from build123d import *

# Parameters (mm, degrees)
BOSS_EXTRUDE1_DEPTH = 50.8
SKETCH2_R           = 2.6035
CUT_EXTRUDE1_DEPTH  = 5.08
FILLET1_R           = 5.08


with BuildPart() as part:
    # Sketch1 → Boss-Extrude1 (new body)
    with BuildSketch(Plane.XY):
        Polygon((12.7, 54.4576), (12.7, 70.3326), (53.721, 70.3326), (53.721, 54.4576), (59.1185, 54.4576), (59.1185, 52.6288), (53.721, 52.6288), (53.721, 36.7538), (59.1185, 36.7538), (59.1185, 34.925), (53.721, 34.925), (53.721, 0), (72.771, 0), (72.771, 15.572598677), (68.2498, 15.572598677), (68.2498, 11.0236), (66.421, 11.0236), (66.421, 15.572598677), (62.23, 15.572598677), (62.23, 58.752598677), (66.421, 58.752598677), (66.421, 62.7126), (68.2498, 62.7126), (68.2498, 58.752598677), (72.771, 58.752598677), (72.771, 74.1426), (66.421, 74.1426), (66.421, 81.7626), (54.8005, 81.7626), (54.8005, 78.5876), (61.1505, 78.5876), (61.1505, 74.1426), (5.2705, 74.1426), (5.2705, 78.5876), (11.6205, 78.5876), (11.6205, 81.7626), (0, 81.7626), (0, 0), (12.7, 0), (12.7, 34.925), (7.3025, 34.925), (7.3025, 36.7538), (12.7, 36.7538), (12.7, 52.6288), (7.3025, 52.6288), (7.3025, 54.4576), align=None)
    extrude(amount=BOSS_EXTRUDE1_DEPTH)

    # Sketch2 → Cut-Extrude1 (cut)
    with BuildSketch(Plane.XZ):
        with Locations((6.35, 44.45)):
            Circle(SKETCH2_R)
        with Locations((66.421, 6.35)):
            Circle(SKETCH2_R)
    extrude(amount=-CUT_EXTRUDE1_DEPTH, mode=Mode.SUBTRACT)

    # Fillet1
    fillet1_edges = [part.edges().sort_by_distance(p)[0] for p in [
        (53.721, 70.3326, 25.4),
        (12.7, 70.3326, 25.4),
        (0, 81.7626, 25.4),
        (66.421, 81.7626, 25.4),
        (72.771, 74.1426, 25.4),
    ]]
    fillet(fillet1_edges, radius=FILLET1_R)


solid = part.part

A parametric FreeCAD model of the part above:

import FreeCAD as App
import Part
import Sketcher
Q = App.Units.Quantity


def edges_at(feature, points):
    """Names of the edges that pass closest to the given points."""
    edges = feature.Shape.Edges
    near = lambda p: min(range(len(edges)), key=lambda i: edges[i].distToShape(Part.Vertex(*p))[0])
    return sorted({f"Edge{near(p) + 1}" for p in points})

doc = App.newDocument("Part")
body = doc.addObject("PartDesign::Body", "Body")

sketch1 = body.newObject("Sketcher::SketchObject", "Sketch")
sketch1.AttachmentSupport = (doc.getObject("XY_Plane"), [""])
sketch1.MapMode = "FlatFace"
sketch1.addGeometry([
    Part.LineSegment(App.Vector(12.7, 54.5, 0), App.Vector(12.7, 70.3, 0)),
    Part.LineSegment(App.Vector(12.7, 70.3, 0), App.Vector(53.7, 70.3, 0)),
    Part.LineSegment(App.Vector(53.7, 70.3, 0), App.Vector(53.7, 54.5, 0)),
    Part.LineSegment(App.Vector(53.7, 54.5, 0), App.Vector(59.1, 54.5, 0)),
    Part.LineSegment(App.Vector(59.1, 54.5, 0), App.Vector(59.1, 52.6, 0)),
    Part.LineSegment(App.Vector(59.1, 52.6, 0), App.Vector(53.7, 52.6, 0)),
    Part.LineSegment(App.Vector(53.7, 52.6, 0), App.Vector(53.7, 36.8, 0)),
    Part.LineSegment(App.Vector(53.7, 36.8, 0), App.Vector(59.1, 36.8, 0)),
    Part.LineSegment(App.Vector(59.1, 36.8, 0), App.Vector(59.1, 34.9, 0)),
    Part.LineSegment(App.Vector(59.1, 34.9, 0), App.Vector(53.7, 34.9, 0)),
    Part.LineSegment(App.Vector(53.7, 34.9, 0), App.Vector(53.7, 0, 0)),
    Part.LineSegment(App.Vector(53.7, 0, 0), App.Vector(72.8, 0, 0)),
    Part.LineSegment(App.Vector(72.8, 0, 0), App.Vector(72.8, 15.6, 0)),
    Part.LineSegment(App.Vector(72.8, 15.6, 0), App.Vector(68.2, 15.6, 0)),
    Part.LineSegment(App.Vector(68.2, 15.6, 0), App.Vector(68.2, 11, 0)),
    Part.LineSegment(App.Vector(68.2, 11, 0), App.Vector(66.4, 11, 0)),
    Part.LineSegment(App.Vector(66.4, 11, 0), App.Vector(66.4, 15.6, 0)),
    Part.LineSegment(App.Vector(66.4, 15.6, 0), App.Vector(62.2, 15.6, 0)),
    Part.LineSegment(App.Vector(62.2, 15.6, 0), App.Vector(62.2, 58.8, 0)),
    Part.LineSegment(App.Vector(62.2, 58.8, 0), App.Vector(66.4, 58.8, 0)),
    Part.LineSegment(App.Vector(66.4, 58.8, 0), App.Vector(66.4, 62.7, 0)),
    Part.LineSegment(App.Vector(66.4, 62.7, 0), App.Vector(68.2, 62.7, 0)),
    Part.LineSegment(App.Vector(68.2, 62.7, 0), App.Vector(68.2, 58.8, 0)),
    Part.LineSegment(App.Vector(68.2, 58.8, 0), App.Vector(72.8, 58.8, 0)),
    Part.LineSegment(App.Vector(72.8, 58.8, 0), App.Vector(72.8, 74.1, 0)),
    Part.LineSegment(App.Vector(72.8, 74.1, 0), App.Vector(66.4, 74.1, 0)),
    Part.LineSegment(App.Vector(66.4, 74.1, 0), App.Vector(66.4, 81.8, 0)),
    Part.LineSegment(App.Vector(66.4, 81.8, 0), App.Vector(54.8, 81.8, 0)),
    Part.LineSegment(App.Vector(54.8, 81.8, 0), App.Vector(54.8, 78.6, 0)),
    Part.LineSegment(App.Vector(54.8, 78.6, 0), App.Vector(61.2, 78.6, 0)),
    Part.LineSegment(App.Vector(61.2, 78.6, 0), App.Vector(61.2, 74.1, 0)),
    Part.LineSegment(App.Vector(61.2, 74.1, 0), App.Vector(5.3, 74.1, 0)),
    Part.LineSegment(App.Vector(5.3, 74.1, 0), App.Vector(5.3, 78.6, 0)),
    Part.LineSegment(App.Vector(5.3, 78.6, 0), App.Vector(11.6, 78.6, 0)),
    Part.LineSegment(App.Vector(11.6, 78.6, 0), App.Vector(11.6, 81.8, 0)),
    Part.LineSegment(App.Vector(11.6, 81.8, 0), App.Vector(0, 81.8, 0)),
    Part.LineSegment(App.Vector(0, 81.8, 0), App.Vector(0, 0, 0)),
    Part.LineSegment(App.Vector(0, 0, 0), App.Vector(12.7, 0, 0)),
    Part.LineSegment(App.Vector(12.7, 0, 0), App.Vector(12.7, 34.9, 0)),
    Part.LineSegment(App.Vector(12.7, 34.9, 0), App.Vector(7.3, 34.9, 0)),
    Part.LineSegment(App.Vector(7.3, 34.9, 0), App.Vector(7.3, 36.8, 0)),
    Part.LineSegment(App.Vector(7.3, 36.8, 0), App.Vector(12.7, 36.8, 0)),
    Part.LineSegment(App.Vector(12.7, 36.8, 0), App.Vector(12.7, 52.6, 0)),
    Part.LineSegment(App.Vector(12.7, 52.6, 0), App.Vector(7.3, 52.6, 0)),
    Part.LineSegment(App.Vector(7.3, 52.6, 0), App.Vector(7.3, 54.5, 0)),
    Part.LineSegment(App.Vector(7.3, 54.5, 0), App.Vector(12.7, 54.5, 0)),
], False)
sketch1.addConstraint([
    Sketcher.Constraint("Coincident", 0, 2, 1, 1),
    Sketcher.Constraint("Coincident", 1, 2, 2, 1),
    Sketcher.Constraint("Coincident", 2, 2, 3, 1),
    Sketcher.Constraint("Coincident", 3, 2, 4, 1),
    Sketcher.Constraint("Coincident", 4, 2, 5, 1),
    Sketcher.Constraint("Coincident", 5, 2, 6, 1),
    Sketcher.Constraint("Coincident", 6, 2, 7, 1),
    Sketcher.Constraint("Coincident", 7, 2, 8, 1),
    Sketcher.Constraint("Coincident", 8, 2, 9, 1),
    Sketcher.Constraint("Coincident", 9, 2, 10, 1),
    Sketcher.Constraint("Coincident", 10, 2, 11, 1),
    Sketcher.Constraint("Coincident", 11, 2, 12, 1),
    Sketcher.Constraint("Coincident", 12, 2, 13, 1),
    Sketcher.Constraint("Coincident", 13, 2, 14, 1),
    Sketcher.Constraint("Coincident", 14, 2, 15, 1),
    Sketcher.Constraint("Coincident", 15, 2, 16, 1),
    Sketcher.Constraint("Coincident", 16, 2, 17, 1),
    Sketcher.Constraint("Coincident", 17, 2, 18, 1),
    Sketcher.Constraint("Coincident", 18, 2, 19, 1),
    Sketcher.Constraint("Coincident", 19, 2, 20, 1),
    Sketcher.Constraint("Coincident", 20, 2, 21, 1),
    Sketcher.Constraint("Coincident", 21, 2, 22, 1),
    Sketcher.Constraint("Coincident", 22, 2, 23, 1),
    Sketcher.Constraint("Coincident", 23, 2, 24, 1),
    Sketcher.Constraint("Coincident", 24, 2, 25, 1),
    Sketcher.Constraint("Coincident", 25, 2, 26, 1),
    Sketcher.Constraint("Coincident", 26, 2, 27, 1),
    Sketcher.Constraint("Coincident", 27, 2, 28, 1),
    Sketcher.Constraint("Coincident", 28, 2, 29, 1),
    Sketcher.Constraint("Coincident", 29, 2, 30, 1),
    Sketcher.Constraint("Coincident", 30, 2, 31, 1),
    Sketcher.Constraint("Coincident", 31, 2, 32, 1),
    Sketcher.Constraint("Coincident", 32, 2, 33, 1),
    Sketcher.Constraint("Coincident", 33, 2, 34, 1),
    Sketcher.Constraint("Coincident", 34, 2, 35, 1),
    Sketcher.Constraint("Coincident", 35, 2, 36, 1),
    Sketcher.Constraint("Coincident", 36, 2, 37, 1),
    Sketcher.Constraint("Coincident", 37, 2, 38, 1),
    Sketcher.Constraint("Coincident", 38, 2, 39, 1),
    Sketcher.Constraint("Coincident", 39, 2, 40, 1),
    Sketcher.Constraint("Coincident", 40, 2, 41, 1),
    Sketcher.Constraint("Coincident", 41, 2, 42, 1),
    Sketcher.Constraint("Coincident", 42, 2, 43, 1),
    Sketcher.Constraint("Coincident", 43, 2, 44, 1),
    Sketcher.Constraint("Coincident", 44, 2, 45, 1),
    Sketcher.Constraint("Coincident", 45, 2, 0, 1),
    Sketcher.Constraint("Vertical", 0),
    Sketcher.Constraint("Horizontal", 1),
    Sketcher.Constraint("Vertical", 2),
    Sketcher.Constraint("Horizontal", 3),
    Sketcher.Constraint("Vertical", 4),
    Sketcher.Constraint("Horizontal", 5),
    Sketcher.Constraint("Vertical", 6),
    Sketcher.Constraint("Horizontal", 7),
    Sketcher.Constraint("Vertical", 8),
    Sketcher.Constraint("Horizontal", 9),
    Sketcher.Constraint("Vertical", 10),
    Sketcher.Constraint("Horizontal", 11),
    Sketcher.Constraint("Vertical", 12),
    Sketcher.Constraint("Horizontal", 13),
    Sketcher.Constraint("Vertical", 14),
    Sketcher.Constraint("Horizontal", 15),
    Sketcher.Constraint("Vertical", 16),
    Sketcher.Constraint("Horizontal", 17),
    Sketcher.Constraint("Vertical", 18),
    Sketcher.Constraint("Horizontal", 19),
    Sketcher.Constraint("Vertical", 20),
    Sketcher.Constraint("Horizontal", 21),
    Sketcher.Constraint("Vertical", 22),
    Sketcher.Constraint("Horizontal", 23),
    Sketcher.Constraint("Vertical", 24),
    Sketcher.Constraint("Horizontal", 25),
    Sketcher.Constraint("Vertical", 26),
    Sketcher.Constraint("Horizontal", 27),
    Sketcher.Constraint("Vertical", 28),
    Sketcher.Constraint("Horizontal", 29),
    Sketcher.Constraint("Vertical", 30),
    Sketcher.Constraint("Horizontal", 31),
    Sketcher.Constraint("Vertical", 32),
    Sketcher.Constraint("Horizontal", 33),
    Sketcher.Constraint("Vertical", 34),
    Sketcher.Constraint("Horizontal", 35),
    Sketcher.Constraint("Vertical", 36),
    Sketcher.Constraint("Horizontal", 37),
    Sketcher.Constraint("Vertical", 38),
    Sketcher.Constraint("Horizontal", 39),
    Sketcher.Constraint("Vertical", 40),
    Sketcher.Constraint("Horizontal", 41),
    Sketcher.Constraint("Vertical", 42),
    Sketcher.Constraint("Horizontal", 43),
    Sketcher.Constraint("Vertical", 44),
    Sketcher.Constraint("Horizontal", 45),
    Sketcher.Constraint("Coincident", 36, 2, -1, 1),
    Sketcher.Constraint("PointOnObject", 10, 2, -1),
    Sketcher.Constraint("Horizontal", 13, 2, 16, 2),
    Sketcher.Constraint("Horizontal", 19, 2, 22, 2),
    Sketcher.Constraint("Horizontal", 25, 2, 30, 2),
    Sketcher.Constraint("Horizontal", 29, 2, 32, 2),
    Sketcher.Constraint("Horizontal", 27, 2, 34, 2),
    Sketcher.Constraint("Horizontal", 9, 2, 38, 2),
    Sketcher.Constraint("Horizontal", 7, 2, 40, 2),
    Sketcher.Constraint("Horizontal", 5, 2, 42, 2),
    Sketcher.Constraint("Horizontal", 3, 2, 44, 2),
    Sketcher.Constraint("Vertical", 2, 2, 5, 2),
    Sketcher.Constraint("Vertical", 4, 2, 7, 2),
    Sketcher.Constraint("Vertical", 6, 2, 9, 2),
    Sketcher.Constraint("Vertical", 16, 2, 19, 2),
    Sketcher.Constraint("Vertical", 14, 2, 21, 2),
    Sketcher.Constraint("Vertical", 12, 2, 23, 2),
    Sketcher.Constraint("Vertical", 20, 2, 25, 2),
    Sketcher.Constraint("Vertical", 0, 2, 37, 2),
    Sketcher.Constraint("Vertical", 38, 2, 41, 2),
    Sketcher.Constraint("Vertical", 40, 2, 43, 2),
    Sketcher.Constraint("Equal", 25, 29),
    Sketcher.Constraint("Equal", 29, 33),
    Sketcher.Constraint("Equal", 27, 35),
    Sketcher.Constraint("Equal", 9, 39),
    Sketcher.Constraint("Equal", 21, 4),
    Sketcher.Constraint("Equal", 2, 6),
    Sketcher.Constraint("Equal", 4, 8),
    Sketcher.Constraint("DistanceX", 31, 2, 31, 1, Q("2.2 in")),
    Sketcher.Constraint("DistanceX", 37, 1, 37, 2, Q("0.5 in")),
    Sketcher.Constraint("DistanceY", 18, 1, 18, 2, Q("1.7 in")),
    Sketcher.Constraint("DistanceY", 26, 1, 26, 2, Q("0.3 in")),
    Sketcher.Constraint("DistanceX", 11, 1, 11, 2, Q("0.75 in")),
    Sketcher.Constraint("DistanceX", 25, 2, 25, 1, Q("0.25 in")),
    Sketcher.Constraint("DistanceY", 20, 2, 1, 2, Q("0.3 in")),
    Sketcher.Constraint("DistanceX", 1, 1, 1, 2, Q("1.615 in")),
    Sketcher.Constraint("DistanceX", 13, 2, 13, 1, Q("0.178 in")),
    Sketcher.Constraint("DistanceX", 17, 2, 17, 1, Q("0.165 in")),
    Sketcher.Constraint("DistanceY", 0, 1, 0, 2, Q("0.625 in")),
    Sketcher.Constraint("DistanceY", 10, 2, 10, 1, Q("1.375 in")),
    Sketcher.Constraint("DistanceY", 28, 2, 28, 1, Q("0.125 in")),
    Sketcher.Constraint("DistanceY", 36, 2, 36, 1, Q("3.219 in")),
    Sketcher.Constraint("DistanceX", 31, 2, 39, 2, Q("0.08 in")),
    Sketcher.Constraint("DistanceY", -1, 1, 14, 2, Q("0.434 in")),
    Sketcher.Constraint("DistanceY", 12, 1, 12, 2, Q("15.572599 mm")),
])
pad1 = body.newObject("PartDesign::Pad", "Pad")
pad1.Profile = sketch1
pad1.Length = Q("2 in")

sketch2 = body.newObject("Sketcher::SketchObject", "Sketch001")
sketch2.AttachmentSupport = (doc.getObject("XZ_Plane"), [""])
sketch2.MapMode = "FlatFace"
sketch2.addGeometry([
    Part.Circle(App.Vector(6.3, 44.5, 0), App.Vector(0, 0, 1), 2.6),
    Part.Circle(App.Vector(66.4, 6.3, 0), App.Vector(0, 0, 1), 2.6),
], False)
sketch2.addConstraint([
    Sketcher.Constraint("Equal", 0, 1),
    Sketcher.Constraint("Diameter", 0, Q("0.205 in")),
    Sketcher.Constraint("DistanceY", 1, 3, 0, 3, Q("1.5 in")),
    Sketcher.Constraint("DistanceX", -1, 1, 0, 3, Q("0.25 in")),
    Sketcher.Constraint("DistanceY", -1, 1, 0, 3, Q("1.75 in")),
    Sketcher.Constraint("DistanceX", -1, 1, 1, 3, Q("2.615 in")),
])
pocket1 = body.newObject("PartDesign::Pocket", "Pocket")
pocket1.Profile = sketch2
pocket1.Length = Q("0.2 in")
doc.recompute()

fillet = body.newObject("PartDesign::Fillet", "Fillet")
fillet.Base = (pocket1, edges_at(pocket1, [
    (53.721, 70.333, 25.4),
    (12.7, 70.333, 25.4),
    (0, 81.763, 25.4),
    (66.421, 81.763, 25.4),
    (72.771, 74.143, 25.4),
]))
fillet.Radius = Q("0.2 in")

doc.recompute()
